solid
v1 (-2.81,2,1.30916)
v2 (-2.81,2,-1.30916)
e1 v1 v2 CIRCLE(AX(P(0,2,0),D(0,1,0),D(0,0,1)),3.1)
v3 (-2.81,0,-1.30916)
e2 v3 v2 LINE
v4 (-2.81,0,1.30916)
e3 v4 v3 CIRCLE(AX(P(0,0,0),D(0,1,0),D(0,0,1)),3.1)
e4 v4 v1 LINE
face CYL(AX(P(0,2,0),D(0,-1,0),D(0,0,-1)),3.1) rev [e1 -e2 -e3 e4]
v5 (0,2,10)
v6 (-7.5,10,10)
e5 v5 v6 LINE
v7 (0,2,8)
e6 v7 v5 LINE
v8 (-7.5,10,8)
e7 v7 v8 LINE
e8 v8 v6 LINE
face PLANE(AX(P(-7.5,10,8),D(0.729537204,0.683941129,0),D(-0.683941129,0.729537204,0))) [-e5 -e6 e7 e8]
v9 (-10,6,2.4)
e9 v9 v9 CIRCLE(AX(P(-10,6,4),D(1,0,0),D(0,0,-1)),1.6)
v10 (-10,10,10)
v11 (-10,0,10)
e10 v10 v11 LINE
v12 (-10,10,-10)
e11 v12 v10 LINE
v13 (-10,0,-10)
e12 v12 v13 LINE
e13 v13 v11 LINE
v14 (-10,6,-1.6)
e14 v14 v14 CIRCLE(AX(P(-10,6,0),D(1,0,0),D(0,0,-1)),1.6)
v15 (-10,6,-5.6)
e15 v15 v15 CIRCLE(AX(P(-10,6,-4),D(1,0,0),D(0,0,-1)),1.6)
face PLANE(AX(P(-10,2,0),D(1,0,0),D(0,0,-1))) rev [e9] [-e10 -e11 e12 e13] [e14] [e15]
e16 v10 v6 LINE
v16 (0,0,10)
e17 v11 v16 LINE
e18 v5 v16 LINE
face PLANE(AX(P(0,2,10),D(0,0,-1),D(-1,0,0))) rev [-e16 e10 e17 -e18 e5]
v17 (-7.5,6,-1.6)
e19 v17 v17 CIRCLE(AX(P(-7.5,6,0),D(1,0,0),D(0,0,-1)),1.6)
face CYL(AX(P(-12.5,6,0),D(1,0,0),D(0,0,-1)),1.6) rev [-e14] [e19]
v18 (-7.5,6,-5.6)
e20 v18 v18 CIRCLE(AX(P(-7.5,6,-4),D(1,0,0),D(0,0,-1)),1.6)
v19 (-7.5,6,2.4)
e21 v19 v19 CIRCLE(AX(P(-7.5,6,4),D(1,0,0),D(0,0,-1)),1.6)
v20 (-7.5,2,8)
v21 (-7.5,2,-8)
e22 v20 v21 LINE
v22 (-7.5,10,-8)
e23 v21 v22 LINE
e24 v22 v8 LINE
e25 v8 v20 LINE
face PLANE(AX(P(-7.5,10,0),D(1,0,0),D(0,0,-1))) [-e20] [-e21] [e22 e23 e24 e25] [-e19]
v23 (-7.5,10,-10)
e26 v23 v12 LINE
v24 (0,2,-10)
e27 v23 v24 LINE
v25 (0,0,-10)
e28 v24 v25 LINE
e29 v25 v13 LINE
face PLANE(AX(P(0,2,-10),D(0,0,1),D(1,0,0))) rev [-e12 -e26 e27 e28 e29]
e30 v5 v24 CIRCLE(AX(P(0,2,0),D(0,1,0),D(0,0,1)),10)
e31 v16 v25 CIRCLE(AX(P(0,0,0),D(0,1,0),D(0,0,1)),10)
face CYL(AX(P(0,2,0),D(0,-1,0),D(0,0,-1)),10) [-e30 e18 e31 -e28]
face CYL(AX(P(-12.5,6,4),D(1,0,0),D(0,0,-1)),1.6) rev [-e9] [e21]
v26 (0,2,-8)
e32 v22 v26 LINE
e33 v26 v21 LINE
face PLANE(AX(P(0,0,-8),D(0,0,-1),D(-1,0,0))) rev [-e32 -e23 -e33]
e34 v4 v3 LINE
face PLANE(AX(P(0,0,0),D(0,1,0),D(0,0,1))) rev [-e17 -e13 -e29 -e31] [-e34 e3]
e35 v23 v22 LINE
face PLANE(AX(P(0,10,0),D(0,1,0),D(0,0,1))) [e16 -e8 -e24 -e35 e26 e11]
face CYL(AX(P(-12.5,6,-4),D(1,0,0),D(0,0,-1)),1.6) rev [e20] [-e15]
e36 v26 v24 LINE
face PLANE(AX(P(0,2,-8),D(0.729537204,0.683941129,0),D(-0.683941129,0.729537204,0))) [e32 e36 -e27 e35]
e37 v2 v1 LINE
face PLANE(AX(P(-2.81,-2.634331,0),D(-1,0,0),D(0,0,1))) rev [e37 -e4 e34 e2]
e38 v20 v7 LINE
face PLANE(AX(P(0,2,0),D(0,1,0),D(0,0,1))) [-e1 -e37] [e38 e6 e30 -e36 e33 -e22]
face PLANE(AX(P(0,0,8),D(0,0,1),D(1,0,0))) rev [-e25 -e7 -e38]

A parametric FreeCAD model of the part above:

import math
import FreeCAD as App
import Part
import Sketcher
Q = App.Units.Quantity

doc = App.newDocument("Part")
body = doc.addObject("PartDesign::Body", "Body")

# Sketch on XZ plane
sketch1 = doc.addObject("Sketcher::SketchObject", "Sketch")
body.addObject(sketch1)
sketch1.AttachmentSupport = (doc.XZ_Plane, [""])
sketch1.MapMode = "FlatFace"
sketch1.addGeometry(Part.ArcOfCircle(Part.Circle(App.Vector(0, 0, 0), App.Vector(0, 0, 1), 10), math.radians(-90), math.radians(90)), False)
sketch1.addGeometry(Part.LineSegment(App.Vector(0, -10, 0), App.Vector(-10, -10, 0)), False)
sketch1.addGeometry(Part.LineSegment(App.Vector(-10, -10, 0), App.Vector(-10, 10, 0)), False)
sketch1.addGeometry(Part.LineSegment(App.Vector(-10, 10, 0), App.Vector(0, 10, 0)), False)
sketch1.addGeometry(Part.Circle(App.Vector(0, 0, 0), App.Vector(0, 0, 1), 3.1), False)
sketch1.addConstraint(Sketcher.Constraint("Tangent", 0, 1, 1, 1))
sketch1.addConstraint(Sketcher.Constraint("Coincident", 1, 2, 2, 1))
sketch1.addConstraint(Sketcher.Constraint("Coincident", 2, 2, 3, 1))
sketch1.addConstraint(Sketcher.Constraint("Tangent", 3, 2, 0, 2))
sketch1.addConstraint(Sketcher.Constraint("Horizontal", 1))
sketch1.addConstraint(Sketcher.Constraint("Vertical", 2))
sketch1.addConstraint(Sketcher.Constraint("Horizontal", 3))
sketch1.addConstraint(Sketcher.Constraint("Coincident", 0, 3, -1, 1))
sketch1.addConstraint(Sketcher.Constraint("Coincident", 4, 3, -1, 1))
sketch1.addConstraint(Sketcher.Constraint("Radius", 0, Q("10 mm")))
sketch1.addConstraint(Sketcher.Constraint("Diameter", 4, Q("6.2 mm")))
sketch1.addConstraint(Sketcher.Constraint("DistanceX", 1, 2, 1, 1, Q("10 mm")))
pad1 = doc.addObject("PartDesign::Pad", "Pad")
body.addObject(pad1)
pad1.Profile = sketch1
pad1.Length = 2
pad1.Reversed = True

# Sketch on XZ plane
sketch2 = doc.addObject("Sketcher::SketchObject", "Sketch001")
body.addObject(sketch2)
sketch2.AttachmentSupport = (doc.XZ_Plane, [""])
sketch2.MapMode = "FlatFace"
sketch2.addGeometry(Part.LineSegment(App.Vector(-7.5, -10, 0), App.Vector(-10, -10, 0)), False)
sketch2.addGeometry(Part.LineSegment(App.Vector(-10, -10, 0), App.Vector(-10, 10, 0)), False)
sketch2.addGeometry(Part.LineSegment(App.Vector(-10, 10, 0), App.Vector(-7.5, 10, 0)), False)
sketch2.addGeometry(Part.LineSegment(App.Vector(-7.5, 10, 0), App.Vector(-7.5, -10, 0)), False)
sketch2.addConstraint(Sketcher.Constraint("Coincident", 0, 2, 1, 1))
sketch2.addConstraint(Sketcher.Constraint("Coincident", 1, 2, 2, 1))
sketch2.addConstraint(Sketcher.Constraint("Coincident", 2, 2, 3, 1))
sketch2.addConstraint(Sketcher.Constraint("Coincident", 3, 2, 0, 1))
sketch2.addConstraint(Sketcher.Constraint("Horizontal", 0))
sketch2.addConstraint(Sketcher.Constraint("Vertical", 1))
sketch2.addConstraint(Sketcher.Constraint("Horizontal", 2))
sketch2.addConstraint(Sketcher.Constraint("Vertical", 3))
sketch2.addConstraint(Sketcher.Constraint("DistanceY", 1, 1, 1, 2, Q("20 mm")))
sketch2.addConstraint(Sketcher.Constraint("DistanceX", 0, 2, 0, 1, Q("2.5 mm")))
sketch2.addConstraint(Sketcher.Constraint("DistanceX", 0, 2, -1, 1, Q("10 mm")))
sketch2.addConstraint(Sketcher.Constraint("DistanceY", 0, 2, -1, 1, Q("10 mm")))
pad2 = doc.addObject("PartDesign::Pad", "Pad001")
body.addObject(pad2)
pad2.Profile = sketch2
pad2.Length = 10
pad2.Reversed = True

# Sketch on XY plane
sketch3 = doc.addObject("Sketcher::SketchObject", "Sketch002")
body.addObject(sketch3)
sketch3.AttachmentSupport = (doc.XY_Plane, [""])
sketch3.MapMode = "FlatFace"
sketch3.AttachmentOffset = App.Placement(App.Vector(0, 0, 10), App.Rotation())
sketch3.addGeometry(Part.LineSegment(App.Vector(0, 2, 0), App.Vector(-8, 10, 0)), False)
sketch3.addGeometry(Part.LineSegment(App.Vector(-8, 10, 0), App.Vector(-8, 2, 0)), False)
sketch3.addGeometry(Part.LineSegment(App.Vector(-8, 2, 0), App.Vector(0, 2, 0)), False)
sketch3.addConstraint(Sketcher.Constraint("Coincident", 0, 2, 1, 1))
sketch3.addConstraint(Sketcher.Constraint("Coincident", 1, 2, 2, 1))
sketch3.addConstraint(Sketcher.Constraint("Coincident", 2, 2, 0, 1))
sketch3.addConstraint(Sketcher.Constraint("Vertical", 1))
sketch3.addConstraint(Sketcher.Constraint("Horizontal", 2))
sketch3.addConstraint(Sketcher.Constraint("PointOnObject", 2, 2, -2))
sketch3.addConstraint(Sketcher.Constraint("DistanceY", 1, 2, 1, 1, Q("8 mm")))
sketch3.addConstraint(Sketcher.Constraint("DistanceX", 2, 1, 2, 2, Q("7.5 mm")))
sketch3.addConstraint(Sketcher.Constraint("DistanceY", -1, 1, 0, 2, Q("10 mm")))
pad3 = doc.addObject("PartDesign::Pad", "Pad002")
body.addObject(pad3)
pad3.Profile = sketch3
pad3.Length = 2
pad3.Reversed = True

# Sketch on XY plane
sketch4 = doc.addObject("Sketcher::SketchObject", "Sketch003")
body.addObject(sketch4)
sketch4.AttachmentSupport = (doc.XY_Plane, [""])
sketch4.MapMode = "FlatFace"
sketch4.AttachmentOffset = App.Placement(App.Vector(0, 0, -10), App.Rotation())
sketch4.addGeometry(Part.LineSegment(App.Vector(-8, 10, 0), App.Vector(0, 2, 0)), False)
sketch4.addGeometry(Part.LineSegment(App.Vector(0, 2, 0), App.Vector(-8, 2, 0)), False)
sketch4.addGeometry(Part.LineSegment(App.Vector(-8, 2, 0), App.Vector(-8, 10, 0)), False)
sketch4.addConstraint(Sketcher.Constraint("Coincident", 0, 2, 1, 1))
sketch4.addConstraint(Sketcher.Constraint("Coincident", 1, 2, 2, 1))
sketch4.addConstraint(Sketcher.Constraint("Coincident", 2, 2, 0, 1))
sketch4.addConstraint(Sketcher.Constraint("Horizontal", 1))
sketch4.addConstraint(Sketcher.Constraint("Vertical", 2))
sketch4.addConstraint(Sketcher.Constraint("PointOnObject", 0, 2, -2))
sketch4.addConstraint(Sketcher.Constraint("DistanceY", 2, 1, 2, 2, Q("8 mm")))
sketch4.addConstraint(Sketcher.Constraint("DistanceX", 1, 2, 1, 1, Q("7.5 mm")))
sketch4.addConstraint(Sketcher.Constraint("DistanceY", -1, 1, 0, 2, Q("2 mm")))
pad4 = doc.addObject("PartDesign::Pad", "Pad003")
body.addObject(pad4)
pad4.Profile = sketch4
pad4.Length = 2

# Sketch on YZ plane
sketch5 = doc.addObject("Sketcher::SketchObject", "Sketch004")
body.addObject(sketch5)
sketch5.AttachmentSupport = (doc.YZ_Plane, [""])
sketch5.MapMode = "FlatFace"
sketch5.AttachmentOffset = App.Placement(App.Vector(0, 0, -7.5), App.Rotation())
sketch5.addGeometry(Part.Circle(App.Vector(6, 4, 0), App.Vector(0, 0, 1), 1.6), False)
sketch5.addGeometry(Part.Circle(App.Vector(6, 0, 0), App.Vector(0, 0, 1), 1.6), False)
sketch5.addGeometry(Part.Circle(App.Vector(6, -4, 0), App.Vector(0, 0, 1), 1.6), False)
sketch5.addConstraint(Sketcher.Constraint("Equal", 0, 1))
sketch5.addConstraint(Sketcher.Constraint("Equal", 1, 2))
sketch5.addConstraint(Sketcher.Constraint("Symmetric", 0, 3, 2, 3, -1))
sketch5.addConstraint(Sketcher.Constraint("PointOnObject", 1, 3, -1))
sketch5.addConstraint(Sketcher.Constraint("Vertical", 0, 3, 1, 3))
sketch5.addConstraint(Sketcher.Constraint("Diameter", 0, Q("3.2 mm")))
sketch5.addConstraint(Sketcher.Constraint("DistanceX", -1, 1, 0, 3, Q("6 mm")))
sketch5.addConstraint(Sketcher.Constraint("DistanceY", -1, 1, 0, 3, Q("4 mm")))
pocket1 = doc.addObject("PartDesign::Pocket", "Pocket")
body.addObject(pocket1)
pocket1.Profile = sketch5
pocket1.Length = 5

# Sketch on XZ plane
sketch6 = doc.addObject("Sketcher::SketchObject", "Sketch005")
body.addObject(sketch6)
sketch6.AttachmentSupport = (doc.XZ_Plane, [""])
sketch6.MapMode = "FlatFace"
sketch6.addGeometry(Part.LineSegment(App.Vector(-2.8, 1.3, 0), App.Vector(-2.8, -1.3, 0)), False)
sketch6.addGeometry(Part.ArcOfCircle(Part.Circle(App.Vector(0, 0, 0), App.Vector(0, 0, 1), 3.1), math.radians(155), math.radians(205)), False)
sketch6.addConstraint(Sketcher.Constraint("Coincident", 0, 1, 1, 1))
sketch6.addConstraint(Sketcher.Constraint("Coincident", 1, 2, 0, 2))
sketch6.addConstraint(Sketcher.Constraint("Vertical", 0))
sketch6.addConstraint(Sketcher.Constraint("Coincident", 1, 3, -1, 1))
sketch6.addConstraint(Sketcher.Constraint("Radius", 1, Q("3.1 mm")))
sketch6.addConstraint(Sketcher.Constraint("DistanceX", 0, 1, -1, 1, Q("2.81 mm")))
pad5 = doc.addObject("PartDesign::Pad", "Pad004")
body.addObject(pad5)
pad5.Profile = sketch6
pad5.Length = 2
pad5.Reversed = True

doc.recompute()
